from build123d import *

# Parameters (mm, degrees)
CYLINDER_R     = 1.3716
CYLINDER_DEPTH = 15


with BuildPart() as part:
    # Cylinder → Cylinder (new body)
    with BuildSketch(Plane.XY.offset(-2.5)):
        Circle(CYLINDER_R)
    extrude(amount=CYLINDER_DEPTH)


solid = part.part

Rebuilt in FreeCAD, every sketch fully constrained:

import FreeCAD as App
import Part
import Sketcher
from FreeCAD import Vector
Q = App.Units.Quantity

doc = App.newDocument("Part")
body = doc.addObject("PartDesign::Body", "Body")

sketch1 = body.newObject("Sketcher::SketchObject", "Sketch")
sketch1.AttachmentSupport = (doc.getObject("XY_Plane"), [""])
sketch1.MapMode = "FlatFace"
sketch1.AttachmentOffset = App.Placement(Vector(0, 0, -2.5), App.Rotation())
sketch1.addGeometry(Part.Circle(Vector(0, 0, 0), Vector(0, 0, 1), 1.4), False)
sketch1.addConstraint(Sketcher.Constraint("Coincident", 0, 3, -1, 1))
sketch1.addConstraint(Sketcher.Constraint("Diameter", 0, Q("2.7432 mm")))
pad1 = body.newObject("PartDesign::Pad", "Pad")
pad1.Profile = sketch1
pad1.Length = 15

doc.recompute()
